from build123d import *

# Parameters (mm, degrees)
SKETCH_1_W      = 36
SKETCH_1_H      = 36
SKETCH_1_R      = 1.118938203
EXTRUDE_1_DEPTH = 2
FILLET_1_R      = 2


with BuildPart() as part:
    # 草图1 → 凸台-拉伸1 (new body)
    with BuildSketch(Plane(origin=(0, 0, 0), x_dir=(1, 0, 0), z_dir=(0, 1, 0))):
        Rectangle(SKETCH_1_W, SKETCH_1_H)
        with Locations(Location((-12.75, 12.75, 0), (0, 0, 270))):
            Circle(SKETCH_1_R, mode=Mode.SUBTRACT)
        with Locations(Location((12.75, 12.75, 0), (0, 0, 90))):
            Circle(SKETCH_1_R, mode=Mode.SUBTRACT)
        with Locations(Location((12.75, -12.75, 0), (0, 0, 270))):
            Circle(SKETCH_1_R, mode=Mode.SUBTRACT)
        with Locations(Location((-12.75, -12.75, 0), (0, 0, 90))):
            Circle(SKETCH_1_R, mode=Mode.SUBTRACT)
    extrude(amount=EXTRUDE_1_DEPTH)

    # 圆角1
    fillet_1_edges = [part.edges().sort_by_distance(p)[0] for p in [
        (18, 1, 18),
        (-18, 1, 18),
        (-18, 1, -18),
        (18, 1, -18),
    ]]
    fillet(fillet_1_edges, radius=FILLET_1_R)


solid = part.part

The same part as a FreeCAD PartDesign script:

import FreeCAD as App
import Part
import Sketcher


def edges_at(feature, points):
    """Names of the edges that pass closest to the given points."""
    edges = feature.Shape.Edges
    near = lambda p: min(range(len(edges)), key=lambda i: edges[i].distToShape(Part.Vertex(*p))[0])
    return sorted({f"Edge{near(p) + 1}" for p in points})

doc = App.newDocument("Part")
params = doc.addObject("Spreadsheet::Sheet", "Params")
for row, (alias, value) in enumerate([
    ("sketch1_width", "36 mm"),
    ("pad1_length", "2 mm"),
    ("fillet_radius", "2 mm"),
], start=1):
    params.set(f"A{row}", alias)
    params.set(f"B{row}", "=" + value)
    params.setAlias(f"B{row}", alias)

body = doc.addObject("PartDesign::Body", "Body")

sketch1 = body.newObject("Sketcher::SketchObject", "Sketch")
sketch1.AttachmentSupport = (doc.getObject("XZ_Plane"), [""])
sketch1.MapMode = "FlatFace"
sketch1.addGeometry([
    Part.LineSegment(App.Vector(-18, -18, 0), App.Vector(-18, 18, 0)),
    Part.LineSegment(App.Vector(-18, 18, 0), App.Vector(18, 18, 0)),
    Part.LineSegment(App.Vector(18, 18, 0), App.Vector(18, -18, 0)),
    Part.LineSegment(App.Vector(18, -18, 0), App.Vector(-18, -18, 0)),
    Part.Circle(App.Vector(-12.8, 12.8, 0), App.Vector(0, 0, 1), 1.1),
    Part.Circle(App.Vector(12.8, 12.8, 0), App.Vector(0, 0, 1), 1.1),
    Part.Circle(App.Vector(-12.8, -12.8, 0), App.Vector(0, 0, 1), 1.1),
    Part.Circle(App.Vector(12.8, -12.8, 0), App.Vector(0, 0, 1), 1.1),
], False)
sketch1.addConstraint([
    Sketcher.Constraint("Coincident", 0, 2, 1, 1),
    Sketcher.Constraint("Coincident", 1, 2, 2, 1),
    Sketcher.Constraint("Coincident", 2, 2, 3, 1),
    Sketcher.Constraint("Coincident", 3, 2, 0, 1),
    Sketcher.Constraint("Vertical", 0),
    Sketcher.Constraint("Horizontal", 1),
    Sketcher.Constraint("Vertical", 2),
    Sketcher.Constraint("Horizontal", 3),
    Sketcher.Constraint("Equal", 4, 5),
    Sketcher.Constraint("Equal", 5, 6),
    Sketcher.Constraint("Equal", 6, 7),
    Sketcher.Constraint("Symmetric", 5, 3, 6, 3, -1, 1),
    Sketcher.Constraint("Symmetric", 4, 3, 7, 3, -1, 1),
    Sketcher.Constraint("Symmetric", 0, 2, 2, 2, -1, 1),
    Sketcher.Constraint("Symmetric", 4, 3, 5, 3, -2),
    Sketcher.Constraint("Equal", 3, 0),
    Sketcher.Constraint("DistanceX", 1, 1, 1, 2, 36.0),
    Sketcher.Constraint("DistanceX", 4, 3, 5, 3, 25.5),
    Sketcher.Constraint("DistanceY", 6, 3, 4, 3, 25.5),
    Sketcher.Constraint("Diameter", 4, 2.237876),
])
sketch1.setExpression("Constraints[16]", "Params.sketch1_width")
pad1 = body.newObject("PartDesign::Pad", "Pad")
pad1.Profile = sketch1
pad1.setExpression("Length", "Params.pad1_length")
pad1.Reversed = True
doc.recompute()

fillet = body.newObject("PartDesign::Fillet", "Fillet")
fillet.Base = (pad1, edges_at(pad1, [
    (18, 1, 18),
    (-18, 1, 18),
    (-18, 1, -18),
    (18, 1, -18),
]))
fillet.setExpression("Radius", "Params.fillet_radius")

doc.recompute()
